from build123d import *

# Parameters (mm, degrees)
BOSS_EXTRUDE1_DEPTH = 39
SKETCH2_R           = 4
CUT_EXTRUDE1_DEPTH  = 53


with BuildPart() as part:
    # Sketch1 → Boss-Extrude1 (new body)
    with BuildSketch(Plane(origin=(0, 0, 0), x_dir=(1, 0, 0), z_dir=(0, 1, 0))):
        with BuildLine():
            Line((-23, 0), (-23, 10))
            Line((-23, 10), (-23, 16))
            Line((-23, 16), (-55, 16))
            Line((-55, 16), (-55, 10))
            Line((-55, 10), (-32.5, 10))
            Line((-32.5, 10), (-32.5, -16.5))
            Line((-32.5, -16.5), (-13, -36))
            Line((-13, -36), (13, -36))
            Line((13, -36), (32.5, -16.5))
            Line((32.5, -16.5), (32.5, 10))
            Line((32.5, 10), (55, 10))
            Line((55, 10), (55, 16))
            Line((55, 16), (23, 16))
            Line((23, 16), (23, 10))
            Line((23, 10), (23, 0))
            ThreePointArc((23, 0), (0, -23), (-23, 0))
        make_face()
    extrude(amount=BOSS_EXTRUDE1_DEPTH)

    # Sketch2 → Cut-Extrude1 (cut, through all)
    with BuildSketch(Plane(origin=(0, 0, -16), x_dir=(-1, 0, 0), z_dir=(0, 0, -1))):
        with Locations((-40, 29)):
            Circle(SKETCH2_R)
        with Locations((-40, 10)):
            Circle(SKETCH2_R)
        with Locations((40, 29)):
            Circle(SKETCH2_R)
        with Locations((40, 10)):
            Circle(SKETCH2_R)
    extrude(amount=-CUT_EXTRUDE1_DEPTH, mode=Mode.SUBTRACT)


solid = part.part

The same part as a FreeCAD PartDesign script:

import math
import FreeCAD as App
import Part
import Sketcher
Q = App.Units.Quantity

doc = App.newDocument("Part")
params = doc.addObject("Spreadsheet::Sheet", "Params")
for row, (alias, value) in enumerate([
    ("sketch1_radius", "23 mm"),
    ("sketch1_width", "32 mm"),
    ("sketch1_width2", "26 mm"),
    ("sketch1_height", "16 mm"),
    ("sketch1_height2", "6 mm"),
    ("pad1_length", "39 mm"),
    ("sketch2_diameter", "8 mm"),
], start=1):
    params.set(f"A{row}", alias)
    params.set(f"B{row}", "=" + value)
    params.setAlias(f"B{row}", alias)

body = doc.addObject("PartDesign::Body", "Body")

sketch1 = body.newObject("Sketcher::SketchObject", "Sketch")
sketch1.AttachmentSupport = (doc.getObject("XZ_Plane"), [""])
sketch1.MapMode = "FlatFace"
sketch1.addGeometry(Part.LineSegment(App.Vector(-23, 0, 0), App.Vector(-23, -16, 0)), False)
sketch1.addGeometry(Part.LineSegment(App.Vector(-23, -16, 0), App.Vector(-55, -16, 0)), False)
sketch1.addGeometry(Part.LineSegment(App.Vector(-55, -16, 0), App.Vector(-55, -10, 0)), False)
sketch1.addGeometry(Part.LineSegment(App.Vector(-55, -10, 0), App.Vector(-32, -10, 0)), False)
sketch1.addGeometry(Part.LineSegment(App.Vector(-32, -10, 0), App.Vector(-32, 16, 0)), False)
sketch1.addGeometry(Part.LineSegment(App.Vector(-32, 16, 0), App.Vector(-13, 36, 0)), False)
sketch1.addGeometry(Part.LineSegment(App.Vector(-13, 36, 0), App.Vector(13, 36, 0)), False)
sketch1.addGeometry(Part.LineSegment(App.Vector(13, 36, 0), App.Vector(32, 16, 0)), False)
sketch1.addGeometry(Part.LineSegment(App.Vector(32, 16, 0), App.Vector(32, -10, 0)), False)
sketch1.addGeometry(Part.LineSegment(App.Vector(32, -10, 0), App.Vector(55, -10, 0)), False)
sketch1.addGeometry(Part.LineSegment(App.Vector(55, -10, 0), App.Vector(55, -16, 0)), False)
sketch1.addGeometry(Part.LineSegment(App.Vector(55, -16, 0), App.Vector(23, -16, 0)), False)
sketch1.addGeometry(Part.LineSegment(App.Vector(23, -16, 0), App.Vector(23, 0, 0)), False)
sketch1.addGeometry(Part.ArcOfCircle(Part.Circle(App.Vector(0, 0, 0), App.Vector(0, 0, 1), 23), math.radians(0), math.radians(180)), False)
sketch1.addConstraint(Sketcher.Constraint("Coincident", 0, 2, 1, 1))
sketch1.addConstraint(Sketcher.Constraint("Coincident", 1, 2, 2, 1))
sketch1.addConstraint(Sketcher.Constraint("Coincident", 2, 2, 3, 1))
sketch1.addConstraint(Sketcher.Constraint("Coincident", 3, 2, 4, 1))
sketch1.addConstraint(Sketcher.Constraint("Coincident", 4, 2, 5, 1))
sketch1.addConstraint(Sketcher.Constraint("Coincident", 5, 2, 6, 1))
sketch1.addConstraint(Sketcher.Constraint("Coincident", 6, 2, 7, 1))
sketch1.addConstraint(Sketcher.Constraint("Coincident", 7, 2, 8, 1))
sketch1.addConstraint(Sketcher.Constraint("Coincident", 8, 2, 9, 1))
sketch1.addConstraint(Sketcher.Constraint("Coincident", 9, 2, 10, 1))
sketch1.addConstraint(Sketcher.Constraint("Coincident", 10, 2, 11, 1))
sketch1.addConstraint(Sketcher.Constraint("Coincident", 11, 2, 12, 1))
sketch1.addConstraint(Sketcher.Constraint("Tangent", 12, 2, 13, 1))
sketch1.addConstraint(Sketcher.Constraint("Tangent", 13, 2, 0, 1))
sketch1.addConstraint(Sketcher.Constraint("Vertical", 0))
sketch1.addConstraint(Sketcher.Constraint("Horizontal", 1))
sketch1.addConstraint(Sketcher.Constraint("Vertical", 2))
sketch1.addConstraint(Sketcher.Constraint("Horizontal", 3))
sketch1.addConstraint(Sketcher.Constraint("Vertical", 4))
sketch1.addConstraint(Sketcher.Constraint("Horizontal", 6))
sketch1.addConstraint(Sketcher.Constraint("Vertical", 8))
sketch1.addConstraint(Sketcher.Constraint("Horizontal", 9))
sketch1.addConstraint(Sketcher.Constraint("Vertical", 10))
sketch1.addConstraint(Sketcher.Constraint("Horizontal", 11))
sketch1.addConstraint(Sketcher.Constraint("Vertical", 12))
sketch1.addConstraint(Sketcher.Constraint("Coincident", 13, 3, -1, 1))
sketch1.addConstraint(Sketcher.Constraint("Symmetric", 4, 2, 7, 2, -2))
sketch1.addConstraint(Sketcher.Constraint("Symmetric", 2, 2, 9, 2, -2))
sketch1.addConstraint(Sketcher.Constraint("Perpendicular", 5, 7))
sketch1.addConstraint(Sketcher.Constraint("Horizontal", 1, 2, 10, 2))
sketch1.addConstraint(Sketcher.Constraint("Equal", 5, 7))
sketch1.addConstraint(Sketcher.Constraint("Radius", 13, Q("23 mm")))
sketch1.addConstraint(Sketcher.Constraint("DistanceX", 1, 2, 1, 1, Q("32 mm")))
sketch1.addConstraint(Sketcher.Constraint("DistanceX", 6, 1, 6, 2, Q("26 mm")))
sketch1.addConstraint(Sketcher.Constraint("DistanceY", 0, 2, 0, 1, Q("16 mm")))
sketch1.addConstraint(Sketcher.Constraint("DistanceY", 2, 1, 2, 2, Q("6 mm")))
sketch1.addConstraint(Sketcher.Constraint("DistanceX", 3, 1, 3, 2, Q("22.5 mm")))
sketch1.addConstraint(Sketcher.Constraint("DistanceY", 4, 1, 4, 2, Q("26.5 mm")))
sketch1.setExpression("Constraints[31]", "Params.sketch1_radius")
sketch1.setExpression("Constraints[32]", "Params.sketch1_width")
sketch1.setExpression("Constraints[33]", "Params.sketch1_width2")
sketch1.setExpression("Constraints[34]", "Params.sketch1_height")
sketch1.setExpression("Constraints[35]", "Params.sketch1_height2")
pad1 = body.newObject("PartDesign::Pad", "Pad")
pad1.Profile = sketch1
pad1.setExpression("Length", "Params.pad1_length")
pad1.Reversed = True

sketch2 = body.newObject("Sketcher::SketchObject", "Sketch001")
sketch2.AttachmentSupport = (doc.getObject("XY_Plane"), [""])
sketch2.MapMode = "FlatFace"
sketch2.AttachmentOffset = App.Placement(App.Vector(0, 0, -16), App.Rotation())
sketch2.addGeometry(Part.Circle(App.Vector(40, 29, 0), App.Vector(0, 0, 1), 4), False)
sketch2.addGeometry(Part.Circle(App.Vector(40, 10, 0), App.Vector(0, 0, 1), 4), False)
sketch2.addGeometry(Part.Circle(App.Vector(-40, 29, 0), App.Vector(0, 0, 1), 4), False)
sketch2.addGeometry(Part.Circle(App.Vector(-40, 10, 0), App.Vector(0, 0, 1), 4), False)
sketch2.addConstraint(Sketcher.Constraint("Equal", 0, 1))
sketch2.addConstraint(Sketcher.Constraint("Equal", 1, 2))
sketch2.addConstraint(Sketcher.Constraint("Equal", 2, 3))
sketch2.addConstraint(Sketcher.Constraint("Symmetric", 0, 3, 2, 3, -2))
sketch2.addConstraint(Sketcher.Constraint("Symmetric", 1, 3, 3, 3, -2))
sketch2.addConstraint(Sketcher.Constraint("Vertical", 0, 3, 1, 3))
sketch2.addConstraint(Sketcher.Constraint("Diameter", 0, Q("8 mm")))
sketch2.addConstraint(Sketcher.Constraint("DistanceX", -1, 1, 0, 3, Q("40 mm")))
sketch2.addConstraint(Sketcher.Constraint("DistanceY", -1, 1, 0, 3, Q("29 mm")))
sketch2.addConstraint(Sketcher.Constraint("DistanceY", -1, 1, 1, 3, Q("10 mm")))
sketch2.setExpression("Constraints[6]", "Params.sketch2_diameter")
pocket1 = body.newObject("PartDesign::Pocket", "Pocket")
pocket1.Profile = sketch2
pocket1.Type = "ThroughAll"
pocket1.Reversed = True

doc.recompute()
